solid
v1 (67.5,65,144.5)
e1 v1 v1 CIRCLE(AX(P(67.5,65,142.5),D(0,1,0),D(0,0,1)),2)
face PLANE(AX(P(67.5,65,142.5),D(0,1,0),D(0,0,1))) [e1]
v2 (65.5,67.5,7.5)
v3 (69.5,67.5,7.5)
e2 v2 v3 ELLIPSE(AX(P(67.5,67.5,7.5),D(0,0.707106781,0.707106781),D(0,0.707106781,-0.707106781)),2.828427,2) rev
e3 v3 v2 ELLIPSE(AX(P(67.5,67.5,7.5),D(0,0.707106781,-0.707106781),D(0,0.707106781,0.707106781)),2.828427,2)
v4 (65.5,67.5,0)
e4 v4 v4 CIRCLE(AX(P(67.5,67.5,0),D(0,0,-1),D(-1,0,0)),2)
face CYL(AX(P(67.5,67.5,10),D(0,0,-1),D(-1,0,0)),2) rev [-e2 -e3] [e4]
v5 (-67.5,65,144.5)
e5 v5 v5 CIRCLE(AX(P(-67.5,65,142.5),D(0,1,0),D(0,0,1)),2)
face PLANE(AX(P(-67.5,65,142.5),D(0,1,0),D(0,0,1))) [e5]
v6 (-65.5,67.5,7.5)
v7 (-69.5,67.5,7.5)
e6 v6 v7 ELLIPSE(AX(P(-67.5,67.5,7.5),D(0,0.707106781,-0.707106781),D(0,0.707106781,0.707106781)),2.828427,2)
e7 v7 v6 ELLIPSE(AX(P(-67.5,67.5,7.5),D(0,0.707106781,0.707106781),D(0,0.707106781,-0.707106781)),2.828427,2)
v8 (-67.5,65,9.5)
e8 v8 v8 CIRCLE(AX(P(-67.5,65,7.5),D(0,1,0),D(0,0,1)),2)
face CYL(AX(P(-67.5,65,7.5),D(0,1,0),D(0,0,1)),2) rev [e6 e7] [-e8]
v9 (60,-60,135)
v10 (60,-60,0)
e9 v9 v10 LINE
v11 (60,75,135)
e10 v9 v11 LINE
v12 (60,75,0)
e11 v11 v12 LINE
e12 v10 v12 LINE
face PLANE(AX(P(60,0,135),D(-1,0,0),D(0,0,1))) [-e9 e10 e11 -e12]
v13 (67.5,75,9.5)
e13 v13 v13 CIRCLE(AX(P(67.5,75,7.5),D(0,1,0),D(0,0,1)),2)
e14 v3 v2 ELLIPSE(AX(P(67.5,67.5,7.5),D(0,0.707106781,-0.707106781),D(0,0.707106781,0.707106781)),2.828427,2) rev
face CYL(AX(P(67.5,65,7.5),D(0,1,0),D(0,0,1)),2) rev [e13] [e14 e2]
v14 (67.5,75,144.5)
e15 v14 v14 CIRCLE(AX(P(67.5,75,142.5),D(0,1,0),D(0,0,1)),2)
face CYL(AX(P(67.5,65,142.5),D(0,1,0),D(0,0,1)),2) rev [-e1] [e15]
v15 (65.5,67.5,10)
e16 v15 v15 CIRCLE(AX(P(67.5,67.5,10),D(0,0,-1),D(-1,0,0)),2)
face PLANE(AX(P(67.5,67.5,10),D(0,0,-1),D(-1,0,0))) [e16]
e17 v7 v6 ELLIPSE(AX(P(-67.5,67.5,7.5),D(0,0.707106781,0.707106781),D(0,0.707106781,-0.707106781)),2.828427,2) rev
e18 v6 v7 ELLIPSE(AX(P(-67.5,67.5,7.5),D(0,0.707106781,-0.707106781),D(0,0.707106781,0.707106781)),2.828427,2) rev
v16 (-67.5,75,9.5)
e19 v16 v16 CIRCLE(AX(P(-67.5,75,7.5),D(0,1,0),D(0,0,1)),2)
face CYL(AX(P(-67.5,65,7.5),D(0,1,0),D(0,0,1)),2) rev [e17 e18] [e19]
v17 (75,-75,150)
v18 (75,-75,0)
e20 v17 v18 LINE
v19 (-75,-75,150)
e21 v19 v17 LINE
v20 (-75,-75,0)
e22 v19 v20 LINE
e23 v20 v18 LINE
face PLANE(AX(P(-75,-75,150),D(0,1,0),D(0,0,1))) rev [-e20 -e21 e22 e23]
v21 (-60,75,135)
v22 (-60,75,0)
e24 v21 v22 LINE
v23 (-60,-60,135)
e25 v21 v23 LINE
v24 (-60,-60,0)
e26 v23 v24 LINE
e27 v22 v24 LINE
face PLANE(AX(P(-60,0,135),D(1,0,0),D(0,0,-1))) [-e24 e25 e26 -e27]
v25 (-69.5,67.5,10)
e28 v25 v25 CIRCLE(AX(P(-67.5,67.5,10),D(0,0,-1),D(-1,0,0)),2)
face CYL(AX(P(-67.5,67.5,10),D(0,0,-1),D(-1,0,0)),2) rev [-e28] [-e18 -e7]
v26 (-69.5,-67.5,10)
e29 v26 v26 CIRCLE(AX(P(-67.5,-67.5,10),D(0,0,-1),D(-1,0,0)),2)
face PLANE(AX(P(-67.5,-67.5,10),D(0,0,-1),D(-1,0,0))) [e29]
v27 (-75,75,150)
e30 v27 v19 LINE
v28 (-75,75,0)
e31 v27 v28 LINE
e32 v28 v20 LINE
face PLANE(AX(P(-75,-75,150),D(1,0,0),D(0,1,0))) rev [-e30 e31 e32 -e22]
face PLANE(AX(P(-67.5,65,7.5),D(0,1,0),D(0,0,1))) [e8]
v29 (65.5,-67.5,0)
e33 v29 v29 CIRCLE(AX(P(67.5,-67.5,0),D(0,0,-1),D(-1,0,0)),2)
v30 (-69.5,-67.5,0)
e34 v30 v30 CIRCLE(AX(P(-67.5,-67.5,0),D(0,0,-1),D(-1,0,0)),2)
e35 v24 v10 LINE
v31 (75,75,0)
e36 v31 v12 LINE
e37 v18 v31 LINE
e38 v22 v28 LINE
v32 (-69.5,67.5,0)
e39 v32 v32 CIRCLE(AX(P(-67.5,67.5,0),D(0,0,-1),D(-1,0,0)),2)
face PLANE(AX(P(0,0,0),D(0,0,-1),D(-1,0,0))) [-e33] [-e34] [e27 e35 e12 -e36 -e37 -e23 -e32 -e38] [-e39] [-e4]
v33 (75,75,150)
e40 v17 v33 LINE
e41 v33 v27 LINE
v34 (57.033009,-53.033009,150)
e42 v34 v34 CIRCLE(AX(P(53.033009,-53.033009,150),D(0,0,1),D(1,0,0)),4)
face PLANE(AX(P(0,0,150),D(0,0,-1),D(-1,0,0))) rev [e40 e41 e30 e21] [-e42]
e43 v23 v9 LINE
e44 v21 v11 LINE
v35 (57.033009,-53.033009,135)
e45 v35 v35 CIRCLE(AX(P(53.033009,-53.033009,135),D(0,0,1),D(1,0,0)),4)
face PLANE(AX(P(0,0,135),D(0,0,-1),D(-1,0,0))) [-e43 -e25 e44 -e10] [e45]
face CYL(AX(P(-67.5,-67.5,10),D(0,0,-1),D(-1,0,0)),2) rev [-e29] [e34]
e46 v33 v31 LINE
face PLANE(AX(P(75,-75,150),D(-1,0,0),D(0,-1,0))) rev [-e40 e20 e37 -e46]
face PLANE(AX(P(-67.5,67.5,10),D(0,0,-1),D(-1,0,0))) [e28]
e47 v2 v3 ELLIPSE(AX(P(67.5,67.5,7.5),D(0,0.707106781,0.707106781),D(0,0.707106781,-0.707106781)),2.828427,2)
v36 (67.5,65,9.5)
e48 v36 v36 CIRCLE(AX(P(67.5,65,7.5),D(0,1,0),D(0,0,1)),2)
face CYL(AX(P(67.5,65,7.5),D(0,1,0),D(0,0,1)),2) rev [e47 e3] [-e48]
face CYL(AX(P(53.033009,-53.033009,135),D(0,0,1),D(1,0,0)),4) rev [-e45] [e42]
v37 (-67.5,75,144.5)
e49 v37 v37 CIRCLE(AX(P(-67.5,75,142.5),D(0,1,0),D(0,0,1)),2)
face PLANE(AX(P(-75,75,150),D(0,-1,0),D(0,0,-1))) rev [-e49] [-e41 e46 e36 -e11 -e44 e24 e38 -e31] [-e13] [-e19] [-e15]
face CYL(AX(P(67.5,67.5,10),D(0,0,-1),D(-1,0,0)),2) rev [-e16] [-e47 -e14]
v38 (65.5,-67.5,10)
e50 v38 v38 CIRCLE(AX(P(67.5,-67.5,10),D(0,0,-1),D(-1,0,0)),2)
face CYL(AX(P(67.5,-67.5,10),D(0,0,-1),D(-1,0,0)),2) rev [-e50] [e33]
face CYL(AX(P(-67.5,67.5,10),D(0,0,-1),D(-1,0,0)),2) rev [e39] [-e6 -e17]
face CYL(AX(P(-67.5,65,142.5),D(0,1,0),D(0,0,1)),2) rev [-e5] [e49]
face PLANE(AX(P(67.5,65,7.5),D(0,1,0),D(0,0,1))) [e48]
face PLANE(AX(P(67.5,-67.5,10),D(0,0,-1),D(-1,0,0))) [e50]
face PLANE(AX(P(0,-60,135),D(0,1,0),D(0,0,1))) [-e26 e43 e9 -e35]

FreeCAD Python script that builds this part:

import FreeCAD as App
import Part
import Sketcher

V = App.Vector
Q = App.Units.Quantity


def add_polygon(sketch, points):
    """Adds a closed chain of lines whose ends are joined by coincident constraints."""
    first, n = sketch.GeometryCount, len(points)
    for a, b in zip(points, points[1:] + points[:1]):
        sketch.addGeometry(Part.LineSegment(App.Vector(*a, 0), App.Vector(*b, 0)), False)
    for i in range(n):
        sketch.addConstraint(Sketcher.Constraint("Coincident", first + i, 2, first + (i + 1) % n, 1))

doc = App.newDocument("Part")
params = doc.addObject("Spreadsheet::Sheet", "Params")
for row, (alias, value) in enumerate([
    ("sketch1_width", "150 mm"),
    ("pad1_length", "150 mm"),
    ("sketch2_width", "120 mm"),
    ("sketch2_height", "135 mm"),
    ("pocket1_length", "135 mm"),
    ("sketch3_diameter", "4 mm"),
    ("pocket2_length", "10 mm"),
    ("sketch4_diameter", "4 mm"),
    ("pocket3_length", "10 mm"),
    ("sketch5_diameter", "8 mm"),
    ("pocket4_length", "15 mm"),
], start=1):
    params.set(f"A{row}", alias)
    params.set(f"B{row}", "=" + value)
    params.setAlias(f"B{row}", alias)

body = doc.addObject("PartDesign::Body", "Body")

sketch1 = body.newObject("Sketcher::SketchObject", "Sketch")
sketch1.AttachmentSupport = (doc.getObject("XY_Plane"), [""])
sketch1.MapMode = "FlatFace"
add_polygon(sketch1, [(-75, 75), (-75, -75), (75, -75), (75, 75)])
sketch1.addConstraint([
    Sketcher.Constraint("Vertical", 0),
    Sketcher.Constraint("Horizontal", 1),
    Sketcher.Constraint("Vertical", 2),
    Sketcher.Constraint("Horizontal", 3),
    Sketcher.Constraint("Symmetric", 0, 2, 2, 2, -1, 1),
    Sketcher.Constraint("Equal", 3, 0),
    Sketcher.Constraint("DistanceX", 1, 1, 1, 2, Q("150 mm")),
])
sketch1.setExpression("Constraints[10]", "Params.sketch1_width")
pad1 = body.newObject("PartDesign::Pad", "Pad")
pad1.Profile = sketch1
pad1.setExpression("Length", "Params.pad1_length")

sketch2 = body.newObject("Sketcher::SketchObject", "Sketch001")
sketch2.AttachmentSupport = (doc.getObject("XY_Plane"), [""])
sketch2.MapMode = "FlatFace"
add_polygon(sketch2, [(60, 75), (60, -60), (-60, -60), (-60, 75)])
sketch2.addConstraint([
    Sketcher.Constraint("Vertical", 0),
    Sketcher.Constraint("Horizontal", 1),
    Sketcher.Constraint("Vertical", 2),
    Sketcher.Constraint("Horizontal", 3),
    Sketcher.Constraint("DistanceX", 1, 2, 1, 1, Q("120 mm")),
    Sketcher.Constraint("DistanceY", 0, 2, 0, 1, Q("135 mm")),
    Sketcher.Constraint("DistanceX", -1, 1, 0, 2, Q("60 mm")),
    Sketcher.Constraint("DistanceY", 0, 2, -1, 1, Q("60 mm")),
])
sketch2.setExpression("Constraints[8]", "Params.sketch2_width")
sketch2.setExpression("Constraints[9]", "Params.sketch2_height")
pocket1 = body.newObject("PartDesign::Pocket", "Pocket")
pocket1.Profile = sketch2
pocket1.setExpression("Length", "Params.pocket1_length")
pocket1.Reversed = True

sketch3 = body.newObject("Sketcher::SketchObject", "Sketch002")
sketch3.AttachmentSupport = (doc.getObject("XZ_Plane"), [""])
sketch3.MapMode = "FlatFace"
sketch3.AttachmentOffset = App.Placement(V(0, 0, -75), App.Rotation())
sketch3.addGeometry([
    Part.Circle(V(-67.5, 142.5, 0), V(0, 0, 1), 2),
    Part.Circle(V(67.5, 142.5, 0), V(0, 0, 1), 2),
    Part.Circle(V(67.5, 7.5, 0), V(0, 0, 1), 2),
    Part.Circle(V(-67.5, 7.5, 0), V(0, 0, 1), 2),
], False)
sketch3.addConstraint([
    Sketcher.Constraint("Equal", 0, 1),
    Sketcher.Constraint("Equal", 1, 2),
    Sketcher.Constraint("Equal", 2, 3),
    Sketcher.Constraint("Symmetric", 0, 3, 1, 3, -2),
    Sketcher.Constraint("Symmetric", 2, 3, 3, 3, -2),
    Sketcher.Constraint("Vertical", 1, 3, 2, 3),
    Sketcher.Constraint("Diameter", 0, Q("4 mm")),
    Sketcher.Constraint("DistanceX", 0, 3, 1, 3, Q("135 mm")),
    Sketcher.Constraint("DistanceY", 2, 3, 1, 3, Q("135 mm")),
    Sketcher.Constraint("DistanceY", -1, 1, 0, 3, Q("142.5 mm")),
])
sketch3.setExpression("Constraints[6]", "Params.sketch3_diameter")
pocket2 = body.newObject("PartDesign::Pocket", "Pocket001")
pocket2.Profile = sketch3
pocket2.setExpression("Length", "Params.pocket2_length")
pocket2.Reversed = True

sketch4 = body.newObject("Sketcher::SketchObject", "Sketch003")
sketch4.AttachmentSupport = (doc.getObject("XY_Plane"), [""])
sketch4.MapMode = "FlatFace"
sketch4.addGeometry([
    Part.Circle(V(67.5, -67.5, 0), V(0, 0, 1), 2),
    Part.Circle(V(-67.5, -67.5, 0), V(0, 0, 1), 2),
    Part.Circle(V(-67.5, 67.5, 0), V(0, 0, 1), 2),
    Part.Circle(V(67.5, 67.5, 0), V(0, 0, 1), 2),
], False)
sketch4.addConstraint([
    Sketcher.Constraint("Equal", 0, 1),
    Sketcher.Constraint("Equal", 1, 2),
    Sketcher.Constraint("Equal", 2, 3),
    Sketcher.Constraint("Symmetric", 0, 3, 2, 3, -1, 1),
    Sketcher.Constraint("Symmetric", 1, 3, 3, 3, -1, 1),
    Sketcher.Constraint("Symmetric", 0, 3, 1, 3, -2),
    Sketcher.Constraint("Diameter", 0, Q("4 mm")),
    Sketcher.Constraint("DistanceX", 1, 3, 0, 3, Q("135 mm")),
    Sketcher.Constraint("DistanceY", 1, 3, 2, 3, Q("135 mm")),
])
sketch4.setExpression("Constraints[6]", "Params.sketch4_diameter")
pocket3 = body.newObject("PartDesign::Pocket", "Pocket002")
pocket3.Profile = sketch4
pocket3.setExpression("Length", "Params.pocket3_length")
pocket3.Reversed = True

sketch5 = body.newObject("Sketcher::SketchObject", "Sketch004")
sketch5.AttachmentSupport = (doc.getObject("XY_Plane"), [""])
sketch5.MapMode = "FlatFace"
sketch5.AttachmentOffset = App.Placement(V(0, 0, 150), App.Rotation())
sketch5.addGeometry(Part.Circle(V(53, -53, 0), V(0, 0, 1), 4), False)
sketch5.addConstraint([
    Sketcher.Constraint("Diameter", 0, Q("8 mm")),
    Sketcher.Constraint("DistanceX", -1, 1, 0, 3, Q("53.033009 mm")),
    Sketcher.Constraint("DistanceY", 0, 3, -1, 1, Q("53.033009 mm")),
])
sketch5.setExpression("Constraints[0]", "Params.sketch5_diameter")
pocket4 = body.newObject("PartDesign::Pocket", "Pocket003")
pocket4.Profile = sketch5
pocket4.setExpression("Length", "Params.pocket4_length")

doc.recompute()
